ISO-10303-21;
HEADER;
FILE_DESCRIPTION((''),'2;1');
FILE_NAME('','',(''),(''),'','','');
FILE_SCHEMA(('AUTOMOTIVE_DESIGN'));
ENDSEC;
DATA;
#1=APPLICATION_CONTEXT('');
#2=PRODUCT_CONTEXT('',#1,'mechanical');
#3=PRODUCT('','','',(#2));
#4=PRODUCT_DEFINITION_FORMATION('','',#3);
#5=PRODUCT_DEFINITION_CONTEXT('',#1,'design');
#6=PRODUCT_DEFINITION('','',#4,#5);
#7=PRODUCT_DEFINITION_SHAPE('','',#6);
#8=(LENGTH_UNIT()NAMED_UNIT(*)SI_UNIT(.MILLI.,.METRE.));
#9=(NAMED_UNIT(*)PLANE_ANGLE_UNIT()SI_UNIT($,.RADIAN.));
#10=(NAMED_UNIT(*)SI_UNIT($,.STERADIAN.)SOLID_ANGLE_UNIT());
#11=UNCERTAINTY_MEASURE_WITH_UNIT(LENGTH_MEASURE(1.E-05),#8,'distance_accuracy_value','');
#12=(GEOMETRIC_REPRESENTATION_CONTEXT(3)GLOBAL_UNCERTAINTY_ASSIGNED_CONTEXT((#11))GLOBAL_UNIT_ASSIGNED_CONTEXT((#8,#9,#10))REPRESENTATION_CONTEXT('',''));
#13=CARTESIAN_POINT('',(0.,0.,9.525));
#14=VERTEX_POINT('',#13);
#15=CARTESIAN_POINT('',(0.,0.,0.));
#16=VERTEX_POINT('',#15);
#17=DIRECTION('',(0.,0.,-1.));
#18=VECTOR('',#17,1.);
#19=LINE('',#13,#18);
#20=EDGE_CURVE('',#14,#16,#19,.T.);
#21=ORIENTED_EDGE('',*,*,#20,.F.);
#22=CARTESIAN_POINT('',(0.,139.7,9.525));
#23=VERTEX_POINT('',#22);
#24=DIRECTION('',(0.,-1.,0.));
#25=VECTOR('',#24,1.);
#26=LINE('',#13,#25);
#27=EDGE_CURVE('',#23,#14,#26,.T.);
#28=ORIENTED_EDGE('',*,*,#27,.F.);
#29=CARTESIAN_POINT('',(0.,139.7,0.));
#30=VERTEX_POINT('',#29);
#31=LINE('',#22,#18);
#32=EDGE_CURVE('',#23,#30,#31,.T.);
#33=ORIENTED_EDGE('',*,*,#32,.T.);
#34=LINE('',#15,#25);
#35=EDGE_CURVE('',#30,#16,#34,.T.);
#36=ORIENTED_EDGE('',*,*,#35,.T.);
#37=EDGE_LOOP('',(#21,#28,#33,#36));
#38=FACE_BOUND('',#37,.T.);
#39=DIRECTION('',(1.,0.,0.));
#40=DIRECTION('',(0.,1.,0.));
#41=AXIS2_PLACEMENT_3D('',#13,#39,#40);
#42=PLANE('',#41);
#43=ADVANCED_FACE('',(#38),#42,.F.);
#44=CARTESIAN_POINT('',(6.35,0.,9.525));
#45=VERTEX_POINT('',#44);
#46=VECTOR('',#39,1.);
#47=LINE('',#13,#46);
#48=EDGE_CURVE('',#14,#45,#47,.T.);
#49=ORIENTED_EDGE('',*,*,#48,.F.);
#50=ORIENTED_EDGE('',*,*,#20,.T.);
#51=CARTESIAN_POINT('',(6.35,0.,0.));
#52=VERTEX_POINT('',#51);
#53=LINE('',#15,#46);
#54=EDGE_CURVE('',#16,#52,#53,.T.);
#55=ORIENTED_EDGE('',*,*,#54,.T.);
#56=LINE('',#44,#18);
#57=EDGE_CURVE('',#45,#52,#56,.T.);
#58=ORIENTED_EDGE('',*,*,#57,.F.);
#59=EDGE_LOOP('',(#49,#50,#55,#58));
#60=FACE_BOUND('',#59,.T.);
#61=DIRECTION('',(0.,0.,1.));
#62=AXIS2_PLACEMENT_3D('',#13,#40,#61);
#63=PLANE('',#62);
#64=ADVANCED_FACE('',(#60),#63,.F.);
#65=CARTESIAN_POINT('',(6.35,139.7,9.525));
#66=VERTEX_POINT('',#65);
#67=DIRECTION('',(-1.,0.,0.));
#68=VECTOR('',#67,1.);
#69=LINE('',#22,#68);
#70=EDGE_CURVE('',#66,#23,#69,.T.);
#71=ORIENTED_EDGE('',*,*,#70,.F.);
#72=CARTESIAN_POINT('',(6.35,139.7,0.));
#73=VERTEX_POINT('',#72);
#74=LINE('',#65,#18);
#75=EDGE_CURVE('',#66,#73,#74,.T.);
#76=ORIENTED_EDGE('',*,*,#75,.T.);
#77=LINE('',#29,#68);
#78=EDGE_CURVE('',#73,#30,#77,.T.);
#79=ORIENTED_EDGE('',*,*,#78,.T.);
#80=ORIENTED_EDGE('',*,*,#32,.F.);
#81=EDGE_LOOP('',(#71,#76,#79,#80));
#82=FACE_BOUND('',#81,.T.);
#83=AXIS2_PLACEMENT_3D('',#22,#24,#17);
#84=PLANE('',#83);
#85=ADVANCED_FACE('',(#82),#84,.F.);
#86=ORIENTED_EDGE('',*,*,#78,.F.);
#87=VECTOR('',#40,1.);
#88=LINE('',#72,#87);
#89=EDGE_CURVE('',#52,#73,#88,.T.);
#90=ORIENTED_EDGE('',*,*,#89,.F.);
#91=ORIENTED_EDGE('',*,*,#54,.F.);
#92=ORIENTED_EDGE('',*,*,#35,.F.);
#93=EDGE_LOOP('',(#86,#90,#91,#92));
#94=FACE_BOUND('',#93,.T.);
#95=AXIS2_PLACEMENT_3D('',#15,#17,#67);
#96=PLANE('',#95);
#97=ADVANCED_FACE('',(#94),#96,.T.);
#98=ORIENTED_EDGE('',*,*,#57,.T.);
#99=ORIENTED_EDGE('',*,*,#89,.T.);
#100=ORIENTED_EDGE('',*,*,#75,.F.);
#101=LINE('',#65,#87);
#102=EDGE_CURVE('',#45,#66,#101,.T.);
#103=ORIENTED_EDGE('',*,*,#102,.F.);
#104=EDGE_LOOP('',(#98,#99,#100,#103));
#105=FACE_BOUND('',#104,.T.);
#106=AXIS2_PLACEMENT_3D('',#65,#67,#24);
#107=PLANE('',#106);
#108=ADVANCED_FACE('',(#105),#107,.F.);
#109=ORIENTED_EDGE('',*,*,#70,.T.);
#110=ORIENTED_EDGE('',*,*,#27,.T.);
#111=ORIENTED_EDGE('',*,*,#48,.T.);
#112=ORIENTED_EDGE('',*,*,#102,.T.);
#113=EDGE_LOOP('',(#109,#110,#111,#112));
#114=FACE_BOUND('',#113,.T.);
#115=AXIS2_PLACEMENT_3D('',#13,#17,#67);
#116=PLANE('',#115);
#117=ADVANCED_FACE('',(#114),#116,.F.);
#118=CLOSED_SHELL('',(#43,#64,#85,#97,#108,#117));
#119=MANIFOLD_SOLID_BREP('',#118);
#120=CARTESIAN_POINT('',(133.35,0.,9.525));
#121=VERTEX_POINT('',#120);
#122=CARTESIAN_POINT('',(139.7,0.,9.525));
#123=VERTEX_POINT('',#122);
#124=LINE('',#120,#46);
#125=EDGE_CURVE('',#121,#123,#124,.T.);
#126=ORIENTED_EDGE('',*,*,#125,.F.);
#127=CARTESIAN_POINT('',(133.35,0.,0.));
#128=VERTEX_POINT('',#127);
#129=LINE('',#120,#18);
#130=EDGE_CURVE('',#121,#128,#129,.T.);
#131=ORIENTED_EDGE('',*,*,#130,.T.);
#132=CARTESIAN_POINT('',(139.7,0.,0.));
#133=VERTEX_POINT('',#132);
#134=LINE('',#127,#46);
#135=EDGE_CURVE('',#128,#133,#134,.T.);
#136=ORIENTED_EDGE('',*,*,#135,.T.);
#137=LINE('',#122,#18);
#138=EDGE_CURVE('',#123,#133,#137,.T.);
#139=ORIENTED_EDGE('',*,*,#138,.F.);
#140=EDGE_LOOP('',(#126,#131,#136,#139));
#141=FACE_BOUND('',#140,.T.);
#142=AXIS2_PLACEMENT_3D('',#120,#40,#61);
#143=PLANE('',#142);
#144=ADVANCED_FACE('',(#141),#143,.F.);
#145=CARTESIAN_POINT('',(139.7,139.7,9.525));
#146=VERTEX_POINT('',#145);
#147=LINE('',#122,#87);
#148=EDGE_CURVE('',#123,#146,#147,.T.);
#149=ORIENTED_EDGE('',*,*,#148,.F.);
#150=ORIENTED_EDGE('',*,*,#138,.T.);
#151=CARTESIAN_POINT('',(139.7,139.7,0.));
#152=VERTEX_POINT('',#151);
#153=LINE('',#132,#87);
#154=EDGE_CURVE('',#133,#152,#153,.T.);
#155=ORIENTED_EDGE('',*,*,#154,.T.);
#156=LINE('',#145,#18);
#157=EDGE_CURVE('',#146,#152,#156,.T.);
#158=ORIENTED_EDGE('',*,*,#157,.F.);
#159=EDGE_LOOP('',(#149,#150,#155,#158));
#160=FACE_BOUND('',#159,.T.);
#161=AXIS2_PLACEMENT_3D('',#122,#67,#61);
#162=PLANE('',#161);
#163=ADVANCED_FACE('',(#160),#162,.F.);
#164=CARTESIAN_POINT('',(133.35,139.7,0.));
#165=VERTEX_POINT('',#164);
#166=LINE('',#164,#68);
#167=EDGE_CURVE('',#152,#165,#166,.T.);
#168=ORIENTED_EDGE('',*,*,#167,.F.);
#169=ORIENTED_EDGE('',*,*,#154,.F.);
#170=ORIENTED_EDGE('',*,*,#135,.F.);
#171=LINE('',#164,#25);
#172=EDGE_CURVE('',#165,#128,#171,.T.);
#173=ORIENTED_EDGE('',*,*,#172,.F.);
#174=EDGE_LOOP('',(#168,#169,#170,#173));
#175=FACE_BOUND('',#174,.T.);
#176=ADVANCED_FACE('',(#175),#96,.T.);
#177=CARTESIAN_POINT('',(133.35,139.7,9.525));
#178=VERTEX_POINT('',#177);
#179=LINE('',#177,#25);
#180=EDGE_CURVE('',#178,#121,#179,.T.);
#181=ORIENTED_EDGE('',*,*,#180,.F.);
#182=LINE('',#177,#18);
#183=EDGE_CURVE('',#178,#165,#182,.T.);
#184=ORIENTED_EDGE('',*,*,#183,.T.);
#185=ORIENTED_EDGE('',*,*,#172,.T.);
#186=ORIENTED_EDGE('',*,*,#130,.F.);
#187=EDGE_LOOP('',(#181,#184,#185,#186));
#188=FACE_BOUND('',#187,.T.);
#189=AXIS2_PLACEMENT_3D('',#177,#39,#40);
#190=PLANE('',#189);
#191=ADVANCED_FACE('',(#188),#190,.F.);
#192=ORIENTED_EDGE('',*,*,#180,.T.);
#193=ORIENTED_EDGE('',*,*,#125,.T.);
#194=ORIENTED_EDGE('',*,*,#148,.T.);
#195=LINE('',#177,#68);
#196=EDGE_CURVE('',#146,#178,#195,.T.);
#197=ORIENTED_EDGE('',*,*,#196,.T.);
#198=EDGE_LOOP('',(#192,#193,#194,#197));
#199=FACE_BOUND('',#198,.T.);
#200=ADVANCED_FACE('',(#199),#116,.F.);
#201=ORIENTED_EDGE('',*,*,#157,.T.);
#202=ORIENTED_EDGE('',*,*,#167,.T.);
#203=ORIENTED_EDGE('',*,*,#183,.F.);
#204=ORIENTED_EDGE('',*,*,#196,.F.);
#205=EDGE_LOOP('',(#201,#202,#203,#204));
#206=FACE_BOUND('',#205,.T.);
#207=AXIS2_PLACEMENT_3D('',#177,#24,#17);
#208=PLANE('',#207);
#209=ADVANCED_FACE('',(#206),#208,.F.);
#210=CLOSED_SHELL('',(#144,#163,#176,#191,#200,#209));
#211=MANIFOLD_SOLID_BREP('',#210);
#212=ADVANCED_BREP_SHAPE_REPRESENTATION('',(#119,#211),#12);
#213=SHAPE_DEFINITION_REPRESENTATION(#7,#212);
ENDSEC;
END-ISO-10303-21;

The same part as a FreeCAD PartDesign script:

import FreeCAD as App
import Part
import Sketcher
from FreeCAD import Vector
Q = App.Units.Quantity

doc = App.newDocument("Part")
body = doc.addObject("PartDesign::Body", "Body")

sketch1 = body.newObject("Sketcher::SketchObject", "Sketch")
sketch1.AttachmentSupport = (doc.getObject("XY_Plane"), [""])
sketch1.MapMode = "FlatFace"
sketch1.addGeometry(Part.LineSegment(Vector(0, 139.7, 0), Vector(0, 0, 0)), False)
sketch1.addGeometry(Part.LineSegment(Vector(0, 0, 0), Vector(6.35, 0, 0)), False)
sketch1.addGeometry(Part.LineSegment(Vector(6.35, 0, 0), Vector(6.35, 139.7, 0)), False)
sketch1.addGeometry(Part.LineSegment(Vector(6.35, 139.7, 0), Vector(0, 139.7, 0)), False)
sketch1.addConstraint(Sketcher.Constraint("Coincident", 0, 2, 1, 1))
sketch1.addConstraint(Sketcher.Constraint("Coincident", 1, 2, 2, 1))
sketch1.addConstraint(Sketcher.Constraint("Coincident", 2, 2, 3, 1))
sketch1.addConstraint(Sketcher.Constraint("Coincident", 3, 2, 0, 1))
sketch1.addConstraint(Sketcher.Constraint("Vertical", 0))
sketch1.addConstraint(Sketcher.Constraint("Horizontal", 1))
sketch1.addConstraint(Sketcher.Constraint("Vertical", 2))
sketch1.addConstraint(Sketcher.Constraint("Horizontal", 3))
sketch1.addConstraint(Sketcher.Constraint("Coincident", 0, 2, -1, 1))
sketch1.addConstraint(Sketcher.Constraint("DistanceY", 0, 2, 0, 1, Q("5.5 in")))
sketch1.addConstraint(Sketcher.Constraint("DistanceX", 1, 1, 1, 2, Q("0.25 in")))
pad1 = body.newObject("PartDesign::Pad", "Pad")
pad1.Profile = sketch1
pad1.Length = Q("0.375 in")
body2 = doc.addObject("PartDesign::Body", "Body001")

sketch2 = body2.newObject("Sketcher::SketchObject", "Sketch001")
sketch2.AttachmentSupport = (doc.getObject("XY_Plane001"), [""])
sketch2.MapMode = "FlatFace"
sketch2.addGeometry(Part.LineSegment(Vector(133.35, 139.7, 0), Vector(133.35, 0, 0)), False)
sketch2.addGeometry(Part.LineSegment(Vector(133.35, 0, 0), Vector(139.7, 0, 0)), False)
sketch2.addGeometry(Part.LineSegment(Vector(139.7, 0, 0), Vector(139.7, 139.7, 0)), False)
sketch2.addGeometry(Part.LineSegment(Vector(139.7, 139.7, 0), Vector(133.35, 139.7, 0)), False)
sketch2.addConstraint(Sketcher.Constraint("Coincident", 0, 2, 1, 1))
sketch2.addConstraint(Sketcher.Constraint("Coincident", 1, 2, 2, 1))
sketch2.addConstraint(Sketcher.Constraint("Coincident", 2, 2, 3, 1))
sketch2.addConstraint(Sketcher.Constraint("Coincident", 3, 2, 0, 1))
sketch2.addConstraint(Sketcher.Constraint("Vertical", 0))
sketch2.addConstraint(Sketcher.Constraint("Horizontal", 1))
sketch2.addConstraint(Sketcher.Constraint("Vertical", 2))
sketch2.addConstraint(Sketcher.Constraint("Horizontal", 3))
sketch2.addConstraint(Sketcher.Constraint("PointOnObject", 0, 2, -1))
sketch2.addConstraint(Sketcher.Constraint("DistanceY", 0, 2, 0, 1, Q("5.5 in")))
sketch2.addConstraint(Sketcher.Constraint("DistanceX", 1, 1, 1, 2, Q("0.25 in")))
sketch2.addConstraint(Sketcher.Constraint("DistanceX", -1, 1, 1, 2, Q("5.5 in")))
pad2 = body2.newObject("PartDesign::Pad", "Pad001")
pad2.Profile = sketch2
pad2.Length = Q("0.375 in")

doc.recompute()
